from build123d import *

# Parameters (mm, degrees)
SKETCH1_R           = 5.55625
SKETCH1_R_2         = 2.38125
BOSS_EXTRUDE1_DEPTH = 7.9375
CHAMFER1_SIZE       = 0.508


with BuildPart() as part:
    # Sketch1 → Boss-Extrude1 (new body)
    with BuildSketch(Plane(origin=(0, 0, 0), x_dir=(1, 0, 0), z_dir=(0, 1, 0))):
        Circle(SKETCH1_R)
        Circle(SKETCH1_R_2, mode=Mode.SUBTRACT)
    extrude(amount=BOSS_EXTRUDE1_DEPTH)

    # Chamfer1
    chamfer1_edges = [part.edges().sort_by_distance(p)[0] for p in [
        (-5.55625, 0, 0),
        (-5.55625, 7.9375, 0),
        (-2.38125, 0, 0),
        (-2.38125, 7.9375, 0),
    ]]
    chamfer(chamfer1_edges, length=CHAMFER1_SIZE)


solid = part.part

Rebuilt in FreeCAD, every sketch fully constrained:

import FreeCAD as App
import Part
import Sketcher
from FreeCAD import Vector
Q = App.Units.Quantity


def edges_at(feature, points):
    """Names of the edges that pass closest to the given points."""
    edges = feature.Shape.Edges
    near = lambda p: min(range(len(edges)), key=lambda i: edges[i].distToShape(Part.Vertex(*p))[0])
    return sorted({f"Edge{near(p) + 1}" for p in points})

doc = App.newDocument("Part")
body = doc.addObject("PartDesign::Body", "Body")

sketch1 = body.newObject("Sketcher::SketchObject", "Sketch")
sketch1.AttachmentSupport = (doc.getObject("XZ_Plane"), [""])
sketch1.MapMode = "FlatFace"
sketch1.addGeometry([
    Part.Circle(Vector(0, 0, 0), Vector(0, 0, 1), 5.6),
    Part.Circle(Vector(0, 0, 0), Vector(0, 0, 1), 2.4),
], False)
sketch1.addConstraint([
    Sketcher.Constraint("Coincident", 0, 3, -1, 1),
    Sketcher.Constraint("Coincident", 1, 3, -1, 1),
    Sketcher.Constraint("Diameter", 0, Q("0.4375 in")),
    Sketcher.Constraint("Diameter", 1, Q("0.1875 in")),
])
pad1 = body.newObject("PartDesign::Pad", "Pad")
pad1.Profile = sketch1
pad1.Length = Q("0.3125 in")
pad1.Reversed = True
doc.recompute()

chamfer = body.newObject("PartDesign::Chamfer", "Chamfer")
chamfer.Base = (pad1, edges_at(pad1, [
    (-5.556, 0, 0),
    (-5.556, 7.938, 0),
    (-2.381, 0, 0),
    (-2.381, 7.938, 0),
]))
chamfer.Size = Q("0.02 in")

doc.recompute()
